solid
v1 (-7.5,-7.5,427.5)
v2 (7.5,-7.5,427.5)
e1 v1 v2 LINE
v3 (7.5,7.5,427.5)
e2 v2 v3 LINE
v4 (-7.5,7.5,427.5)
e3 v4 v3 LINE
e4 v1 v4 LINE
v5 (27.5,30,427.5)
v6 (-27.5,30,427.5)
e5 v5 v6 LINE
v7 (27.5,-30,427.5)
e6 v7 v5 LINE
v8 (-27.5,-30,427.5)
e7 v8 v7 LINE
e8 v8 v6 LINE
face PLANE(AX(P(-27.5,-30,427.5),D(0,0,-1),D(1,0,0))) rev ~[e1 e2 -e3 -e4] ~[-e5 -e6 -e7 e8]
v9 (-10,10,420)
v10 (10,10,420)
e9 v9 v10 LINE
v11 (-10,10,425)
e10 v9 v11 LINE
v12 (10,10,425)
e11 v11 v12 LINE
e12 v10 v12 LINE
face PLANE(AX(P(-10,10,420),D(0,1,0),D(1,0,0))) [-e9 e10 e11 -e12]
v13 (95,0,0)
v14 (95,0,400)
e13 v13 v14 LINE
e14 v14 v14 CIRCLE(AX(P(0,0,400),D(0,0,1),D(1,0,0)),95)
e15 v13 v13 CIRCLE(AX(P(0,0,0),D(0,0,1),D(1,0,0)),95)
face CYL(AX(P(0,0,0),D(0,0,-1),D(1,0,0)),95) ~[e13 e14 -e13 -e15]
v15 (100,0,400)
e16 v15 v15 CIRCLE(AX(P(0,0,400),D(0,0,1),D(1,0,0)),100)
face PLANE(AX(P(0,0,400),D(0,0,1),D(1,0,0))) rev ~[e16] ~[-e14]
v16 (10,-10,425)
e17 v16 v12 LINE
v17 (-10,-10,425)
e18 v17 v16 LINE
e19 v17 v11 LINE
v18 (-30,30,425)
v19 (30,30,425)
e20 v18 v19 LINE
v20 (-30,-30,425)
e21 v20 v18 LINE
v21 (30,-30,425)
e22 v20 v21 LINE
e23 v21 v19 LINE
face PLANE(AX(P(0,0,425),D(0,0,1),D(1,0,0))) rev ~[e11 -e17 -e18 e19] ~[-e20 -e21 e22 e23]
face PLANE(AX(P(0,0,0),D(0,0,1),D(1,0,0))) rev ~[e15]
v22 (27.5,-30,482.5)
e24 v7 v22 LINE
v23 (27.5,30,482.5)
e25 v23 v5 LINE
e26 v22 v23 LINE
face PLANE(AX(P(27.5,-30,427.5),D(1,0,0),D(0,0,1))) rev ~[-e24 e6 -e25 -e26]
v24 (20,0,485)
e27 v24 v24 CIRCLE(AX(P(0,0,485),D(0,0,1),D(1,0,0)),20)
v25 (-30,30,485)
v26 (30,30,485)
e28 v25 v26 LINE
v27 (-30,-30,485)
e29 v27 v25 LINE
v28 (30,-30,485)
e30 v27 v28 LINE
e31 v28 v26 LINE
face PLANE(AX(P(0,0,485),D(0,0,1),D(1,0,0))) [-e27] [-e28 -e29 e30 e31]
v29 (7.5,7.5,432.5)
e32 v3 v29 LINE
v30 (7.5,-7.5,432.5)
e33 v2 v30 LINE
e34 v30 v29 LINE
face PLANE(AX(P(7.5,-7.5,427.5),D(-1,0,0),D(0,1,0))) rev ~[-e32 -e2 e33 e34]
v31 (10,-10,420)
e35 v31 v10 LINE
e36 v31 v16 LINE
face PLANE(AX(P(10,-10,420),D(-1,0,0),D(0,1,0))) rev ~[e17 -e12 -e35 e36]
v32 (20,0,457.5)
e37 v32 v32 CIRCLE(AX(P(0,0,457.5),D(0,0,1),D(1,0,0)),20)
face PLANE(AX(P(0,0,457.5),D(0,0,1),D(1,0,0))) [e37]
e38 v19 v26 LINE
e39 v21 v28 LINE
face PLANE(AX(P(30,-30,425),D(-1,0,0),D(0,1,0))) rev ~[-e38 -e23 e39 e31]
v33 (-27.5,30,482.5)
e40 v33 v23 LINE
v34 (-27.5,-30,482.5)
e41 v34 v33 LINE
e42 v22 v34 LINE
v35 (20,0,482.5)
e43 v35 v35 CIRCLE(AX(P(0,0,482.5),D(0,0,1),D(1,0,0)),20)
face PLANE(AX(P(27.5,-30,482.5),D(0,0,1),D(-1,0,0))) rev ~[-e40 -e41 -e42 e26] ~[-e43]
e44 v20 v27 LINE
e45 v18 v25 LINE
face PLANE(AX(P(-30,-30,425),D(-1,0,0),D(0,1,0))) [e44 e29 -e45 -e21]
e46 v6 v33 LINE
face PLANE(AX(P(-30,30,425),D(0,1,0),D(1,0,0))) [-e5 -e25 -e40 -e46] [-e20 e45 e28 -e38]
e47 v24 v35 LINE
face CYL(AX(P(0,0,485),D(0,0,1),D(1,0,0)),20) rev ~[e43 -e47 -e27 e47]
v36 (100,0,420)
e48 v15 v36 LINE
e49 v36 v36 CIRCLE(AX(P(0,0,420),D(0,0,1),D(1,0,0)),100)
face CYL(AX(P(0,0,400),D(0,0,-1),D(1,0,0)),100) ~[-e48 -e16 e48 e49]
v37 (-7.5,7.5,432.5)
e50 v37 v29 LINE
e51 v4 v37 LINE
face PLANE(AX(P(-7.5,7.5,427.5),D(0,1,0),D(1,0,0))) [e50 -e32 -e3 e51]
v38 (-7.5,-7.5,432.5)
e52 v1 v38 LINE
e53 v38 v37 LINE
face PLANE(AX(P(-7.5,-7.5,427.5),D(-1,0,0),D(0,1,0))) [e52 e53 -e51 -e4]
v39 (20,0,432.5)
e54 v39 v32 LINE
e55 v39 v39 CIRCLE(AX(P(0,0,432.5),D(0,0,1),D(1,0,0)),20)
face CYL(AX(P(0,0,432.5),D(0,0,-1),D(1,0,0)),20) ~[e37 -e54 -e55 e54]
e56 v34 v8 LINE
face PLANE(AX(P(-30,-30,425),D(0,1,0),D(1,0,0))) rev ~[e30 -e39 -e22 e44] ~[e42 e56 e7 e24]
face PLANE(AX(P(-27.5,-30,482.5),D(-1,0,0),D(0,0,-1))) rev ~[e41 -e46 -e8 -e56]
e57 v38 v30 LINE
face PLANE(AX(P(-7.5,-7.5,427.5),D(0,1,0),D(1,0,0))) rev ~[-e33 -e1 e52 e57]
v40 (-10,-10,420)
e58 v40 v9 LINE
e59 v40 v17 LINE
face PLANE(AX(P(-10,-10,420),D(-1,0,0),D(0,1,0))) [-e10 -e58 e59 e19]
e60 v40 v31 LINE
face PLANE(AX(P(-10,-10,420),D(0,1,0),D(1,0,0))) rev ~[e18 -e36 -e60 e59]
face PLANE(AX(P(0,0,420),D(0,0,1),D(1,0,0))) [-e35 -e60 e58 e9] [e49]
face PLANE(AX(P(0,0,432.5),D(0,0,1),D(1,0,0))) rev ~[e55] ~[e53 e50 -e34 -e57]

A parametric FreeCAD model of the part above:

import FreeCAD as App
import Part
import Sketcher
from FreeCAD import Vector

doc = App.newDocument("Part")
body = doc.addObject("PartDesign::Body", "Body")

# Sketch on XY plane
sketch1 = doc.addObject("Sketcher::SketchObject", "Sketch")
body.addObject(sketch1)
sketch1.AttachmentSupport = (doc.XY_Plane, [""])
sketch1.MapMode = "FlatFace"
sketch1.addGeometry(Part.Circle(Vector(0, 0, 0), Vector(0, 0, 1), 95), False)
sketch1.addConstraint([
    Sketcher.Constraint("Coincident", 0, 3, -1, 1),
    Sketcher.Constraint("Diameter", 0, 190.0),
])
pad1 = doc.addObject("PartDesign::Pad", "Pad")
body.addObject(pad1)
pad1.Profile = sketch1
pad1.Length = 400

# Sketch on XY plane
sketch2 = doc.addObject("Sketcher::SketchObject", "Sketch001")
body.addObject(sketch2)
sketch2.AttachmentSupport = (doc.XY_Plane, [""])
sketch2.MapMode = "FlatFace"
sketch2.AttachmentOffset = App.Placement(Vector(0, 0, 400), App.Rotation())
sketch2.addGeometry(Part.Circle(Vector(0, 0, 0), Vector(0, 0, 1), 100), False)
sketch2.addConstraint([
    Sketcher.Constraint("Coincident", 0, 3, -1, 1),
    Sketcher.Constraint("Diameter", 0, 200.0),
])
pad2 = doc.addObject("PartDesign::Pad", "Pad001")
body.addObject(pad2)
pad2.Profile = sketch2
pad2.Length = 20

# Sketch on XY plane
sketch3 = doc.addObject("Sketcher::SketchObject", "Sketch002")
body.addObject(sketch3)
sketch3.AttachmentSupport = (doc.XY_Plane, [""])
sketch3.MapMode = "FlatFace"
sketch3.AttachmentOffset = App.Placement(Vector(0, 0, 420), App.Rotation())
sketch3.addGeometry([
    Part.LineSegment(Vector(-10, 10, 0), Vector(-10, -10, 0)),
    Part.LineSegment(Vector(-10, -10, 0), Vector(10, -10, 0)),
    Part.LineSegment(Vector(10, -10, 0), Vector(10, 10, 0)),
    Part.LineSegment(Vector(10, 10, 0), Vector(-10, 10, 0)),
], False)
sketch3.addConstraint([
    Sketcher.Constraint("Coincident", 0, 2, 1, 1),
    Sketcher.Constraint("Coincident", 1, 2, 2, 1),
    Sketcher.Constraint("Coincident", 2, 2, 3, 1),
    Sketcher.Constraint("Coincident", 3, 2, 0, 1),
    Sketcher.Constraint("Vertical", 0),
    Sketcher.Constraint("Horizontal", 1),
    Sketcher.Constraint("Vertical", 2),
    Sketcher.Constraint("Horizontal", 3),
    Sketcher.Constraint("Symmetric", 0, 2, 2, 2, -1, 1),
    Sketcher.Constraint("Equal", 3, 0),
    Sketcher.Constraint("DistanceX", 1, 1, 1, 2, 20.0),
])
pad3 = doc.addObject("PartDesign::Pad", "Pad002")
body.addObject(pad3)
pad3.Profile = sketch3
pad3.Length = 5

# Sketch on XY plane
sketch4 = doc.addObject("Sketcher::SketchObject", "Sketch003")
body.addObject(sketch4)
sketch4.AttachmentSupport = (doc.XY_Plane, [""])
sketch4.MapMode = "FlatFace"
sketch4.AttachmentOffset = App.Placement(Vector(0, 0, 425), App.Rotation())
sketch4.addGeometry([
    Part.LineSegment(Vector(-30, 30, 0), Vector(-30, -30, 0)),
    Part.LineSegment(Vector(-30, -30, 0), Vector(30, -30, 0)),
    Part.LineSegment(Vector(30, -30, 0), Vector(30, 30, 0)),
    Part.LineSegment(Vector(30, 30, 0), Vector(-30, 30, 0)),
], False)
sketch4.addConstraint([
    Sketcher.Constraint("Coincident", 0, 2, 1, 1),
    Sketcher.Constraint("Coincident", 1, 2, 2, 1),
    Sketcher.Constraint("Coincident", 2, 2, 3, 1),
    Sketcher.Constraint("Coincident", 3, 2, 0, 1),
    Sketcher.Constraint("Vertical", 0),
    Sketcher.Constraint("Horizontal", 1),
    Sketcher.Constraint("Vertical", 2),
    Sketcher.Constraint("Horizontal", 3),
    Sketcher.Constraint("Symmetric", 0, 2, 2, 2, -1, 1),
    Sketcher.Constraint("Equal", 3, 0),
    Sketcher.Constraint("DistanceX", 1, 1, 1, 2, 60.0),
])
pad4 = doc.addObject("PartDesign::Pad", "Pad003")
body.addObject(pad4)
pad4.Profile = sketch4
pad4.Length = 60

# Sketch on XZ plane
sketch5 = doc.addObject("Sketcher::SketchObject", "Sketch004")
body.addObject(sketch5)
sketch5.AttachmentSupport = (doc.XZ_Plane, [""])
sketch5.MapMode = "FlatFace"
sketch5.AttachmentOffset = App.Placement(Vector(0, 0, 30), App.Rotation())
sketch5.addGeometry([
    Part.LineSegment(Vector(-27.5, 427.5, 0), Vector(27.5, 427.5, 0)),
    Part.LineSegment(Vector(27.5, 427.5, 0), Vector(27.5, 482.5, 0)),
    Part.LineSegment(Vector(27.5, 482.5, 0), Vector(-27.5, 482.5, 0)),
    Part.LineSegment(Vector(-27.5, 482.5, 0), Vector(-27.5, 427.5, 0)),
], False)
sketch5.addConstraint([
    Sketcher.Constraint("Coincident", 0, 2, 1, 1),
    Sketcher.Constraint("Coincident", 1, 2, 2, 1),
    Sketcher.Constraint("Coincident", 2, 2, 3, 1),
    Sketcher.Constraint("Coincident", 3, 2, 0, 1),
    Sketcher.Constraint("Horizontal", 0),
    Sketcher.Constraint("Vertical", 1),
    Sketcher.Constraint("Horizontal", 2),
    Sketcher.Constraint("Vertical", 3),
    Sketcher.Constraint("Equal", 2, 1),
    Sketcher.Constraint("DistanceX", 0, 1, 0, 2, 55.0),
    Sketcher.Constraint("DistanceX", -1, 1, 0, 2, 27.5),
    Sketcher.Constraint("DistanceY", -1, 1, 0, 2, 427.5),
])
pocket1 = doc.addObject("PartDesign::Pocket", "Pocket")
body.addObject(pocket1)
pocket1.Profile = sketch5
pocket1.Type = "ThroughAll"

# Sketch on XY plane
sketch6 = doc.addObject("Sketcher::SketchObject", "Sketch005")
body.addObject(sketch6)
sketch6.AttachmentSupport = (doc.XY_Plane, [""])
sketch6.MapMode = "FlatFace"
sketch6.AttachmentOffset = App.Placement(Vector(0, 0, 485), App.Rotation())
sketch6.addGeometry(Part.Circle(Vector(0, 0, 0), Vector(0, 0, 1), 20), False)
sketch6.addConstraint([
    Sketcher.Constraint("Coincident", 0, 3, -1, 1),
    Sketcher.Constraint("Diameter", 0, 40.0),
])
pocket2 = doc.addObject("PartDesign::Pocket", "Pocket001")
body.addObject(pocket2)
pocket2.Profile = sketch6
pocket2.Length = 25

# Sketch on XY plane
sketch7 = doc.addObject("Sketcher::SketchObject", "Sketch006")
body.addObject(sketch7)
sketch7.AttachmentSupport = (doc.XY_Plane, [""])
sketch7.MapMode = "FlatFace"
sketch7.AttachmentOffset = App.Placement(Vector(0, 0, 427.5), App.Rotation())
sketch7.addGeometry([
    Part.LineSegment(Vector(-7.5, 7.5, 0), Vector(-7.5, -7.5, 0)),
    Part.LineSegment(Vector(-7.5, -7.5, 0), Vector(7.5, -7.5, 0)),
    Part.LineSegment(Vector(7.5, -7.5, 0), Vector(7.5, 7.5, 0)),
    Part.LineSegment(Vector(7.5, 7.5, 0), Vector(-7.5, 7.5, 0)),
], False)
sketch7.addConstraint([
    Sketcher.Constraint("Coincident", 0, 2, 1, 1),
    Sketcher.Constraint("Coincident", 1, 2, 2, 1),
    Sketcher.Constraint("Coincident", 2, 2, 3, 1),
    Sketcher.Constraint("Coincident", 3, 2, 0, 1),
    Sketcher.Constraint("Vertical", 0),
    Sketcher.Constraint("Horizontal", 1),
    Sketcher.Constraint("Vertical", 2),
    Sketcher.Constraint("Horizontal", 3),
    Sketcher.Constraint("Symmetric", 0, 2, 2, 2, -1, 1),
    Sketcher.Constraint("Equal", 3, 0),
    Sketcher.Constraint("DistanceX", 1, 1, 1, 2, 15.0),
])
pad5 = doc.addObject("PartDesign::Pad", "Pad004")
body.addObject(pad5)
pad5.Profile = sketch7
pad5.Length = 5

# Sketch on XY plane
sketch8 = doc.addObject("Sketcher::SketchObject", "Sketch007")
body.addObject(sketch8)
sketch8.AttachmentSupport = (doc.XY_Plane, [""])
sketch8.MapMode = "FlatFace"
sketch8.AttachmentOffset = App.Placement(Vector(0, 0, 432.5), App.Rotation())
sketch8.addGeometry(Part.Circle(Vector(0, 0, 0), Vector(0, 0, 1), 20), False)
sketch8.addConstraint([
    Sketcher.Constraint("Coincident", 0, 3, -1, 1),
    Sketcher.Constraint("Diameter", 0, 40.0),
])
pad6 = doc.addObject("PartDesign::Pad", "Pad005")
body.addObject(pad6)
pad6.Profile = sketch8
pad6.Length = 25

doc.recompute()
